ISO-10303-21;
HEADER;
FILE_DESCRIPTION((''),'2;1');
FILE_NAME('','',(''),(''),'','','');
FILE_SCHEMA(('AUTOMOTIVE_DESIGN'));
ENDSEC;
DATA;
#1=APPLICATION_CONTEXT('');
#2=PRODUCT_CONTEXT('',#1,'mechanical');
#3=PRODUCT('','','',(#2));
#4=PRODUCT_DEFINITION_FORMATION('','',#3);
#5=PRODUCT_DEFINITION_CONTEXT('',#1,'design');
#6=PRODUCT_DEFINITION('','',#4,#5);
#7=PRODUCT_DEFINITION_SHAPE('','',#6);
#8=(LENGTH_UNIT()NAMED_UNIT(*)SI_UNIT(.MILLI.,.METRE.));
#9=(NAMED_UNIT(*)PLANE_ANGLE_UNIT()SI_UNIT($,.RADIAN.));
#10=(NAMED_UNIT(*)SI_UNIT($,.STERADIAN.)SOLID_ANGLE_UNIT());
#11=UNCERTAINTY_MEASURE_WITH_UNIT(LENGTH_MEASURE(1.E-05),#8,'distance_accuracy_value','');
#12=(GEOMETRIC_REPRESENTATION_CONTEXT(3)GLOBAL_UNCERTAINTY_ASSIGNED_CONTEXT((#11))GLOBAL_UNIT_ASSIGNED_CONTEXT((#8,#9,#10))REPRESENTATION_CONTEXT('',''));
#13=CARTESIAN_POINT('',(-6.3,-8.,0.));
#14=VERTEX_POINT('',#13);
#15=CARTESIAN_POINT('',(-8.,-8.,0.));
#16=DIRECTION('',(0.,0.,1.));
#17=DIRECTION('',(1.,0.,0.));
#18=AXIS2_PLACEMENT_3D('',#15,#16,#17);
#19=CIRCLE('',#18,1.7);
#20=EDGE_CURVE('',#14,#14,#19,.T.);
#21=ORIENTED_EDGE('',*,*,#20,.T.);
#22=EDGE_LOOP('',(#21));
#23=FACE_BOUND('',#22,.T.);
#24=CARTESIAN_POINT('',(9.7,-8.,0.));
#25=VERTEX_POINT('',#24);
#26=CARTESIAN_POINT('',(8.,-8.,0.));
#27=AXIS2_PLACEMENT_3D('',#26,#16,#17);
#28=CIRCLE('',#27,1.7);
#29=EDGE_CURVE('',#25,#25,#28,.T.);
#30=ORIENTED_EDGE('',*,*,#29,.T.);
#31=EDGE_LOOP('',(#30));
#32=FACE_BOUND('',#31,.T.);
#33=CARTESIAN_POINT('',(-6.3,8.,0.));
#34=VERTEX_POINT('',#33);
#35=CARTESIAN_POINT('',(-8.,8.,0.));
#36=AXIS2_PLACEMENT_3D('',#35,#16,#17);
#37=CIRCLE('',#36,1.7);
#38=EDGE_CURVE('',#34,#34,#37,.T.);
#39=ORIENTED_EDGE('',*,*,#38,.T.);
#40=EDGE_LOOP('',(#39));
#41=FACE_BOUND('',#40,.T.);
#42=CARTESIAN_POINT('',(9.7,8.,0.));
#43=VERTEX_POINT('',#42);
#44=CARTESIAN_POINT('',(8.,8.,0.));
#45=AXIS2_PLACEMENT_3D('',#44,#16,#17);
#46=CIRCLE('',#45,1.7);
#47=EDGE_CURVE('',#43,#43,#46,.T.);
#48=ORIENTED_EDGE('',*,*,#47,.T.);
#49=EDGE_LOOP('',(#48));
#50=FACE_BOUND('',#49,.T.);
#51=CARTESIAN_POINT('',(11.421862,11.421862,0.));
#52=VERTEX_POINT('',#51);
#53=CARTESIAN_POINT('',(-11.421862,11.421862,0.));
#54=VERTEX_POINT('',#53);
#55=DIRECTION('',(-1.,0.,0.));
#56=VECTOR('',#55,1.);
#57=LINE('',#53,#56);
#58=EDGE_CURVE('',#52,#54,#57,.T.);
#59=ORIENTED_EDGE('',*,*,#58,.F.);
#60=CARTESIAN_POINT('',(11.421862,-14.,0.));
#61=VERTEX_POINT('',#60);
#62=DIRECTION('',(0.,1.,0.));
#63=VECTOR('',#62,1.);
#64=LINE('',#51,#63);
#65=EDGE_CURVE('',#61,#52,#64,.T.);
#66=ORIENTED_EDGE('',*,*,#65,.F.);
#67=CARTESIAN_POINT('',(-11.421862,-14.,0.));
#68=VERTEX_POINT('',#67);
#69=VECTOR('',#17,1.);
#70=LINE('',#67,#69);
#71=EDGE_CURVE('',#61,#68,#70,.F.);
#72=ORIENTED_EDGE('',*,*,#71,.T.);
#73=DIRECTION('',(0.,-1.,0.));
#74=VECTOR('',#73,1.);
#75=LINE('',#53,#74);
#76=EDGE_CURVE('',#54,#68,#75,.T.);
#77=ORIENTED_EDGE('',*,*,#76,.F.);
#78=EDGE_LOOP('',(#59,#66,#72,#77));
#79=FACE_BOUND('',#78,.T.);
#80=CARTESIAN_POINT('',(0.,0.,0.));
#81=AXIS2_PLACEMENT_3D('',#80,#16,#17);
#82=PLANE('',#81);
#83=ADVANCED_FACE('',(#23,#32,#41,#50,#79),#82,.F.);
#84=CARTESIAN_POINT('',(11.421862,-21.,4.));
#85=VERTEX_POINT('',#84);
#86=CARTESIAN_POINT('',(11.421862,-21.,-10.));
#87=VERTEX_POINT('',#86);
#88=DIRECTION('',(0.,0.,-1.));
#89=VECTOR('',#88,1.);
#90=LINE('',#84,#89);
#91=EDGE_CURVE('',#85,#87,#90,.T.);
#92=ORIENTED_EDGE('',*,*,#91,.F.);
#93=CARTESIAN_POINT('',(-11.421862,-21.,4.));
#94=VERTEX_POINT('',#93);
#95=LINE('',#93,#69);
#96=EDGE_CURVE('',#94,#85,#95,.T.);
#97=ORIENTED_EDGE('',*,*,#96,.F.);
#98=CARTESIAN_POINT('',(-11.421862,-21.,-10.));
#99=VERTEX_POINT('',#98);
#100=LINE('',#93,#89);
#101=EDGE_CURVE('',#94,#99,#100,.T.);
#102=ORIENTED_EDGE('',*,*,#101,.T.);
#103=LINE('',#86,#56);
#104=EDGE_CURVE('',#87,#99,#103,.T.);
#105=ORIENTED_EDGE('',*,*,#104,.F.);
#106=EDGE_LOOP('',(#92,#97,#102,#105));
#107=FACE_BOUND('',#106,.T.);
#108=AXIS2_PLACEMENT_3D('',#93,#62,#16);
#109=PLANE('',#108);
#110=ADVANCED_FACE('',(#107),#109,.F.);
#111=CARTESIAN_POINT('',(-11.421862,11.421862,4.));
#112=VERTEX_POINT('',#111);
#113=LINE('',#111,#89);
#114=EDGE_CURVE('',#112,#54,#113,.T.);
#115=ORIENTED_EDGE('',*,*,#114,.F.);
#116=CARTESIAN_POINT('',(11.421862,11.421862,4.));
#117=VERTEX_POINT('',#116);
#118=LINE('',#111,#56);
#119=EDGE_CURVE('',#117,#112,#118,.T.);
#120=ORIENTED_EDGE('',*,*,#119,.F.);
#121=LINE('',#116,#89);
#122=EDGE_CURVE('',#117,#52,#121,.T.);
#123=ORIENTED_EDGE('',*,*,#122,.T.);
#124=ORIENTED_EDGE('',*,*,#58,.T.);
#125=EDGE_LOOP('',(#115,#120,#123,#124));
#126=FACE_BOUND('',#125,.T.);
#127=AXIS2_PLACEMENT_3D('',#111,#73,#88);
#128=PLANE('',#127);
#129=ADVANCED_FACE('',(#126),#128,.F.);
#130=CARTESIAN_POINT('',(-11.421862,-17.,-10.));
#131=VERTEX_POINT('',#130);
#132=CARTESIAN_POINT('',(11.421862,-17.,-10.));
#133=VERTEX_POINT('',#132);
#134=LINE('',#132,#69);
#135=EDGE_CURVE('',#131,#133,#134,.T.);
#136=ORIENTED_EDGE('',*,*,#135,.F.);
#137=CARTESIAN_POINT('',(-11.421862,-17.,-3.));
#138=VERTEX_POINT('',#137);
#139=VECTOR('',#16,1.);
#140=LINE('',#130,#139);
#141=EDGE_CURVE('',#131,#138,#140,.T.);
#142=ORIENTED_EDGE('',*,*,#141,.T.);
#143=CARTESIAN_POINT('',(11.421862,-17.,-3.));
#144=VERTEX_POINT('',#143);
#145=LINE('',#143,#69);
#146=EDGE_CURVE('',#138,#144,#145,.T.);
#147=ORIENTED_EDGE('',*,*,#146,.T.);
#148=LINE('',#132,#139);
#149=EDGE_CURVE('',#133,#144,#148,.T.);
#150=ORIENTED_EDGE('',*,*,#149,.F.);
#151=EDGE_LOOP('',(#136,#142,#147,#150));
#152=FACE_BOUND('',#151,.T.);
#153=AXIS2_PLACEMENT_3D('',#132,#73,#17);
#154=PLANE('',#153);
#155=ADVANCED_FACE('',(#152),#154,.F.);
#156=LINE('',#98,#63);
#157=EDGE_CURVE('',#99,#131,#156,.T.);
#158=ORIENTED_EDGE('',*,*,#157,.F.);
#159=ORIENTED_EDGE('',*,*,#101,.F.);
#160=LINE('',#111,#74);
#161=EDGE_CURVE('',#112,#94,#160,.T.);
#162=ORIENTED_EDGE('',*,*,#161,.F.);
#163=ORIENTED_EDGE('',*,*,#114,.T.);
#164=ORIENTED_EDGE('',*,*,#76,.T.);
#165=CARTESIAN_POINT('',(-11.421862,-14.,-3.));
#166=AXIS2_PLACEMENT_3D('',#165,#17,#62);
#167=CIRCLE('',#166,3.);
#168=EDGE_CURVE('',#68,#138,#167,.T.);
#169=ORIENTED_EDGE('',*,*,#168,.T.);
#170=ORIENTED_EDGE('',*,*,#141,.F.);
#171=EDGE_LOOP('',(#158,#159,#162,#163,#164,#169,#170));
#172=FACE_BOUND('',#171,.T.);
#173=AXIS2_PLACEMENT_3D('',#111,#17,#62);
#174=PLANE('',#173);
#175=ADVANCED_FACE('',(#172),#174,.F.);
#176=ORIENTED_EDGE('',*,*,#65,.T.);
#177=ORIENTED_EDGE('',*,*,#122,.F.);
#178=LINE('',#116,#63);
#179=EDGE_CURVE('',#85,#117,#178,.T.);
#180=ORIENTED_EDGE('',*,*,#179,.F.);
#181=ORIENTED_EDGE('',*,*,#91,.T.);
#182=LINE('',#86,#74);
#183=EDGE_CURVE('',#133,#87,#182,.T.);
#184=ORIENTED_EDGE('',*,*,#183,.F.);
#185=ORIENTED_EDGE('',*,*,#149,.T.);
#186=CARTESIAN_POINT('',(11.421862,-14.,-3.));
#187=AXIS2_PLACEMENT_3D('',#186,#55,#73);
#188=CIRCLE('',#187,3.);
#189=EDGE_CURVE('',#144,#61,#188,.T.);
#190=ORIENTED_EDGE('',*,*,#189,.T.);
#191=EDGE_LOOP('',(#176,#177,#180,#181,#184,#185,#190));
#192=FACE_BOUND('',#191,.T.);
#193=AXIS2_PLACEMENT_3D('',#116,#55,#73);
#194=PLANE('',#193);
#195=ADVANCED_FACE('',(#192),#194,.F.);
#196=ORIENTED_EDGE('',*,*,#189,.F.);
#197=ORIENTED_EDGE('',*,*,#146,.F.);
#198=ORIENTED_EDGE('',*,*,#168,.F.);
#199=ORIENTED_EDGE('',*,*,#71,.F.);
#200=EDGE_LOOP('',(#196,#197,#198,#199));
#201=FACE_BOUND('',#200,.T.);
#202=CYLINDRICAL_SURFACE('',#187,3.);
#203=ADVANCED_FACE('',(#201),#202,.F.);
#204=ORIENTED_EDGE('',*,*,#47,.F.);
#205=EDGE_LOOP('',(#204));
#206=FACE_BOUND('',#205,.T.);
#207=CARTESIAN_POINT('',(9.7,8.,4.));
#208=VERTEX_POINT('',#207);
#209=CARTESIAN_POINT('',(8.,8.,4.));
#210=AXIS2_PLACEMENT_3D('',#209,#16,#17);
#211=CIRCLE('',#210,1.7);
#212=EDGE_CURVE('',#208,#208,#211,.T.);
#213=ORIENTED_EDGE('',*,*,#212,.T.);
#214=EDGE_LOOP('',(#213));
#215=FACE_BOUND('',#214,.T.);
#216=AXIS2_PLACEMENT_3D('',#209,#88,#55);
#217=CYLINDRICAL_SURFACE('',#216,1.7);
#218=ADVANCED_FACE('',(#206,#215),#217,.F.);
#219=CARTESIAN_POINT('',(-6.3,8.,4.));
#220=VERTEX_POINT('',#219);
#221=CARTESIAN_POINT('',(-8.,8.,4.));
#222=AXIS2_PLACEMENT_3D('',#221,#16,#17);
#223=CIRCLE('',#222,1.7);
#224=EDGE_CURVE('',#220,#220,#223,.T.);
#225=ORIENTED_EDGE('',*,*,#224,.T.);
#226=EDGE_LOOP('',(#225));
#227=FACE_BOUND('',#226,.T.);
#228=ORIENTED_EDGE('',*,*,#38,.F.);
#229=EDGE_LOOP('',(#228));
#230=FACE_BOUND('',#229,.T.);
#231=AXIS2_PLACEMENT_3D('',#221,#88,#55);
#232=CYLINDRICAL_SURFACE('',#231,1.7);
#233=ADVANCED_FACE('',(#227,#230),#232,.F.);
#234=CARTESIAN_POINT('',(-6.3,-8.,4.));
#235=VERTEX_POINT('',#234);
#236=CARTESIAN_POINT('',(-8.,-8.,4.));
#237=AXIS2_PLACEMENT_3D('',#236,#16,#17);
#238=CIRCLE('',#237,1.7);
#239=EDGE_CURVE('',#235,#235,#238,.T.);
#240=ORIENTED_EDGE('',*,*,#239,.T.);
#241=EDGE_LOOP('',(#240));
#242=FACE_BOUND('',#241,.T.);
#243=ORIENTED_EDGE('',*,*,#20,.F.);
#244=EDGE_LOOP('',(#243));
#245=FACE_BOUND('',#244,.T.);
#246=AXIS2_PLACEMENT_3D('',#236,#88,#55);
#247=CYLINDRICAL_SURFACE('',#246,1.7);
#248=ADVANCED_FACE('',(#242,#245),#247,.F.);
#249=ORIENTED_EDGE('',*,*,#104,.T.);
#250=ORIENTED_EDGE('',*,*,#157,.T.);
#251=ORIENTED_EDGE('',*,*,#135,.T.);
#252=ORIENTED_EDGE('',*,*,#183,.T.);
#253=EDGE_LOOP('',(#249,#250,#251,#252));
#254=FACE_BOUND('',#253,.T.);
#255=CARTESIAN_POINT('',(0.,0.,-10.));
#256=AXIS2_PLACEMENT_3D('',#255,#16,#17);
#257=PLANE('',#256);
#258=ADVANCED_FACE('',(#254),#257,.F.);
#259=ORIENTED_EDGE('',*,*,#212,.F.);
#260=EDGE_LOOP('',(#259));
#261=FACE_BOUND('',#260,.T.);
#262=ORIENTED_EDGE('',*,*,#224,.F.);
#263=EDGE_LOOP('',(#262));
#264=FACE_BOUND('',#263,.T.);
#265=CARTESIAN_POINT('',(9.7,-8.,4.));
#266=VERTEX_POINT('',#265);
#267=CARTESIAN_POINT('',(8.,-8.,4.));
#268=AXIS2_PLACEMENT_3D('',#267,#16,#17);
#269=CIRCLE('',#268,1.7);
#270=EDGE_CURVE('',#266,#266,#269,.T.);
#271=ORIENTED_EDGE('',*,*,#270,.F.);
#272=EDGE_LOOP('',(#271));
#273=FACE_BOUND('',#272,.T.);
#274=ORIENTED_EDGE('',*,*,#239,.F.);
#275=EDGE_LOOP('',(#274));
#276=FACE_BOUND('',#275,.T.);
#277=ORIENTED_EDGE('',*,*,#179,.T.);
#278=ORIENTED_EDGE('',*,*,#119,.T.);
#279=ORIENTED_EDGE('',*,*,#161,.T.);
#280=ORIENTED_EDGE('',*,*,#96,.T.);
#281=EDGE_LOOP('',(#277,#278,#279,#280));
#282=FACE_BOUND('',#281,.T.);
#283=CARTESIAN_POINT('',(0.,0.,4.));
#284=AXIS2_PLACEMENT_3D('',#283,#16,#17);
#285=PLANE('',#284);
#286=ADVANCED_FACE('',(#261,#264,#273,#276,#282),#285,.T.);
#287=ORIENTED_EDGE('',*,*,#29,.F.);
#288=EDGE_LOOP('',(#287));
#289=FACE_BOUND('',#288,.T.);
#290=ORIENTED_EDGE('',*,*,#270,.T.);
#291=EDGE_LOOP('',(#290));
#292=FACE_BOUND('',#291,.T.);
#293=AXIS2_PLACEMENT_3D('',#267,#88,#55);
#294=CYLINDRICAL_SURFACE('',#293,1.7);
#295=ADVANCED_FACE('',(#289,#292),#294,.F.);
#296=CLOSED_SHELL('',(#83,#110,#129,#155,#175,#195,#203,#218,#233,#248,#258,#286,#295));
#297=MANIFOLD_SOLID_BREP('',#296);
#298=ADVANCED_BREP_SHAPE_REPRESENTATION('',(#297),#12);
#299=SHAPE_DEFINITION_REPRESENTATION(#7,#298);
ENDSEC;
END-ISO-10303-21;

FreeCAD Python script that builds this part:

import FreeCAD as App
import Part
import Sketcher


def edges_at(feature, points):
    """Names of the edges that pass closest to the given points."""
    edges = feature.Shape.Edges
    near = lambda p: min(range(len(edges)), key=lambda i: edges[i].distToShape(Part.Vertex(*p))[0])
    return sorted({f"Edge{near(p) + 1}" for p in points})

doc = App.newDocument("Part")
body = doc.addObject("PartDesign::Body", "Body")

# Sketch on XY plane
sketch1 = doc.addObject("Sketcher::SketchObject", "Sketch")
body.addObject(sketch1)
sketch1.AttachmentSupport = (doc.XY_Plane, [""])
sketch1.MapMode = "FlatFace"
sketch1.addGeometry([
    Part.LineSegment(App.Vector(-11.4, 11.4, 0), App.Vector(-11.4, -11.4, 0)),  # 0
    Part.LineSegment(App.Vector(-11.4, -11.4, 0), App.Vector(11.4, -11.4, 0)),  # 1
    Part.LineSegment(App.Vector(11.4, -11.4, 0), App.Vector(11.4, 11.4, 0)),  # 2
    Part.LineSegment(App.Vector(11.4, 11.4, 0), App.Vector(-11.4, 11.4, 0)),  # 3
    Part.Circle(App.Vector(-8, -8, 0), App.Vector(0, 0, 1), 1.7),  # 4
    Part.Circle(App.Vector(8, -8, 0), App.Vector(0, 0, 1), 1.7),  # 5
    Part.Circle(App.Vector(-8, 8, 0), App.Vector(0, 0, 1), 1.7),  # 6
    Part.Circle(App.Vector(8, 8, 0), App.Vector(0, 0, 1), 1.7),  # 7
], False)
sketch1.addConstraint([
    Sketcher.Constraint("Coincident", 0, 2, 1, 1),
    Sketcher.Constraint("Coincident", 1, 2, 2, 1),
    Sketcher.Constraint("Coincident", 2, 2, 3, 1),
    Sketcher.Constraint("Coincident", 3, 2, 0, 1),
    Sketcher.Constraint("Vertical", 0),
    Sketcher.Constraint("Horizontal", 1),
    Sketcher.Constraint("Vertical", 2),
    Sketcher.Constraint("Horizontal", 3),
    Sketcher.Constraint("Equal", 4, 5),
    Sketcher.Constraint("Equal", 5, 6),
    Sketcher.Constraint("Equal", 6, 7),
    Sketcher.Constraint("Symmetric", 5, 3, 6, 3, -1, 1),
    Sketcher.Constraint("Symmetric", 4, 3, 7, 3, -1, 1),
    Sketcher.Constraint("Symmetric", 0, 2, 2, 2, -1, 1),
    Sketcher.Constraint("Symmetric", 4, 3, 5, 3, -2),
    Sketcher.Constraint("Equal", 3, 0),
    Sketcher.Constraint("Diameter", 4, 3.4),
    Sketcher.Constraint("DistanceX", 4, 3, -1, 1, 8.0),
    Sketcher.Constraint("DistanceY", 4, 3, -1, 1, 8.0),
    Sketcher.Constraint("DistanceX", 1, 1, 1, 2, 22.843724),
])
pad1 = doc.addObject("PartDesign::Pad", "Pad")
body.addObject(pad1)
pad1.Profile = sketch1
pad1.Length = 4

# Sketch on XY plane
sketch2 = doc.addObject("Sketcher::SketchObject", "Sketch001")
body.addObject(sketch2)
sketch2.AttachmentSupport = (doc.XY_Plane, [""])
sketch2.MapMode = "FlatFace"
sketch2.addGeometry([
    Part.LineSegment(App.Vector(-11, -11, 0), App.Vector(-11, -21, 0)),
    Part.LineSegment(App.Vector(-11, -21, 0), App.Vector(11, -21, 0)),
    Part.LineSegment(App.Vector(11, -21, 0), App.Vector(11, -11, 0)),
    Part.LineSegment(App.Vector(11, -11, 0), App.Vector(-11, -11, 0)),
], False)
sketch2.addConstraint([
    Sketcher.Constraint("Coincident", 0, 2, 1, 1),
    Sketcher.Constraint("Coincident", 1, 2, 2, 1),
    Sketcher.Constraint("Coincident", 2, 2, 3, 1),
    Sketcher.Constraint("Coincident", 3, 2, 0, 1),
    Sketcher.Constraint("Vertical", 0),
    Sketcher.Constraint("Horizontal", 1),
    Sketcher.Constraint("Vertical", 2),
    Sketcher.Constraint("Horizontal", 3),
    Sketcher.Constraint("DistanceY", 0, 2, -1, 1, 21.0),
    Sketcher.Constraint("DistanceX", 1, 1, 1, 2, 22.843724),
    Sketcher.Constraint("DistanceY", 0, 2, 0, 1, 9.578138),
    Sketcher.Constraint("DistanceX", 0, 2, -1, 1, 11.421862),
])
pad2 = doc.addObject("PartDesign::Pad", "Pad001")
body.addObject(pad2)
pad2.Profile = sketch2
pad2.Length = 4

# Sketch on XY plane
sketch3 = doc.addObject("Sketcher::SketchObject", "Sketch002")
body.addObject(sketch3)
sketch3.AttachmentSupport = (doc.XY_Plane, [""])
sketch3.MapMode = "FlatFace"
sketch3.addGeometry([
    Part.LineSegment(App.Vector(11.4, -17, 0), App.Vector(11.4, -21, 0)),
    Part.LineSegment(App.Vector(11.4, -21, 0), App.Vector(-11.4, -21, 0)),
    Part.LineSegment(App.Vector(-11.4, -21, 0), App.Vector(-11.4, -17, 0)),
    Part.LineSegment(App.Vector(-11.4, -17, 0), App.Vector(11.4, -17, 0)),
], False)
sketch3.addConstraint([
    Sketcher.Constraint("Coincident", 0, 2, 1, 1),
    Sketcher.Constraint("Coincident", 1, 2, 2, 1),
    Sketcher.Constraint("Coincident", 2, 2, 3, 1),
    Sketcher.Constraint("Coincident", 3, 2, 0, 1),
    Sketcher.Constraint("Vertical", 0),
    Sketcher.Constraint("Horizontal", 1),
    Sketcher.Constraint("Vertical", 2),
    Sketcher.Constraint("Horizontal", 3),
    Sketcher.Constraint("DistanceY", 0, 2, 0, 1, 4.0),
    Sketcher.Constraint("DistanceY", 0, 2, -1, 1, 21.0),
    Sketcher.Constraint("DistanceX", 1, 2, 1, 1, 22.843724),
    Sketcher.Constraint("DistanceX", -1, 1, 0, 2, 11.421862),
])
pad3 = doc.addObject("PartDesign::Pad", "Pad002")
body.addObject(pad3)
pad3.Profile = sketch3
pad3.Length = 10
pad3.Reversed = True
doc.recompute()

fillet = doc.addObject("PartDesign::Fillet", "Fillet")
body.addObject(fillet)
fillet.Base = (pad3, edges_at(pad3, [(0, -17, 0)]))
fillet.Radius = 3

doc.recompute()
